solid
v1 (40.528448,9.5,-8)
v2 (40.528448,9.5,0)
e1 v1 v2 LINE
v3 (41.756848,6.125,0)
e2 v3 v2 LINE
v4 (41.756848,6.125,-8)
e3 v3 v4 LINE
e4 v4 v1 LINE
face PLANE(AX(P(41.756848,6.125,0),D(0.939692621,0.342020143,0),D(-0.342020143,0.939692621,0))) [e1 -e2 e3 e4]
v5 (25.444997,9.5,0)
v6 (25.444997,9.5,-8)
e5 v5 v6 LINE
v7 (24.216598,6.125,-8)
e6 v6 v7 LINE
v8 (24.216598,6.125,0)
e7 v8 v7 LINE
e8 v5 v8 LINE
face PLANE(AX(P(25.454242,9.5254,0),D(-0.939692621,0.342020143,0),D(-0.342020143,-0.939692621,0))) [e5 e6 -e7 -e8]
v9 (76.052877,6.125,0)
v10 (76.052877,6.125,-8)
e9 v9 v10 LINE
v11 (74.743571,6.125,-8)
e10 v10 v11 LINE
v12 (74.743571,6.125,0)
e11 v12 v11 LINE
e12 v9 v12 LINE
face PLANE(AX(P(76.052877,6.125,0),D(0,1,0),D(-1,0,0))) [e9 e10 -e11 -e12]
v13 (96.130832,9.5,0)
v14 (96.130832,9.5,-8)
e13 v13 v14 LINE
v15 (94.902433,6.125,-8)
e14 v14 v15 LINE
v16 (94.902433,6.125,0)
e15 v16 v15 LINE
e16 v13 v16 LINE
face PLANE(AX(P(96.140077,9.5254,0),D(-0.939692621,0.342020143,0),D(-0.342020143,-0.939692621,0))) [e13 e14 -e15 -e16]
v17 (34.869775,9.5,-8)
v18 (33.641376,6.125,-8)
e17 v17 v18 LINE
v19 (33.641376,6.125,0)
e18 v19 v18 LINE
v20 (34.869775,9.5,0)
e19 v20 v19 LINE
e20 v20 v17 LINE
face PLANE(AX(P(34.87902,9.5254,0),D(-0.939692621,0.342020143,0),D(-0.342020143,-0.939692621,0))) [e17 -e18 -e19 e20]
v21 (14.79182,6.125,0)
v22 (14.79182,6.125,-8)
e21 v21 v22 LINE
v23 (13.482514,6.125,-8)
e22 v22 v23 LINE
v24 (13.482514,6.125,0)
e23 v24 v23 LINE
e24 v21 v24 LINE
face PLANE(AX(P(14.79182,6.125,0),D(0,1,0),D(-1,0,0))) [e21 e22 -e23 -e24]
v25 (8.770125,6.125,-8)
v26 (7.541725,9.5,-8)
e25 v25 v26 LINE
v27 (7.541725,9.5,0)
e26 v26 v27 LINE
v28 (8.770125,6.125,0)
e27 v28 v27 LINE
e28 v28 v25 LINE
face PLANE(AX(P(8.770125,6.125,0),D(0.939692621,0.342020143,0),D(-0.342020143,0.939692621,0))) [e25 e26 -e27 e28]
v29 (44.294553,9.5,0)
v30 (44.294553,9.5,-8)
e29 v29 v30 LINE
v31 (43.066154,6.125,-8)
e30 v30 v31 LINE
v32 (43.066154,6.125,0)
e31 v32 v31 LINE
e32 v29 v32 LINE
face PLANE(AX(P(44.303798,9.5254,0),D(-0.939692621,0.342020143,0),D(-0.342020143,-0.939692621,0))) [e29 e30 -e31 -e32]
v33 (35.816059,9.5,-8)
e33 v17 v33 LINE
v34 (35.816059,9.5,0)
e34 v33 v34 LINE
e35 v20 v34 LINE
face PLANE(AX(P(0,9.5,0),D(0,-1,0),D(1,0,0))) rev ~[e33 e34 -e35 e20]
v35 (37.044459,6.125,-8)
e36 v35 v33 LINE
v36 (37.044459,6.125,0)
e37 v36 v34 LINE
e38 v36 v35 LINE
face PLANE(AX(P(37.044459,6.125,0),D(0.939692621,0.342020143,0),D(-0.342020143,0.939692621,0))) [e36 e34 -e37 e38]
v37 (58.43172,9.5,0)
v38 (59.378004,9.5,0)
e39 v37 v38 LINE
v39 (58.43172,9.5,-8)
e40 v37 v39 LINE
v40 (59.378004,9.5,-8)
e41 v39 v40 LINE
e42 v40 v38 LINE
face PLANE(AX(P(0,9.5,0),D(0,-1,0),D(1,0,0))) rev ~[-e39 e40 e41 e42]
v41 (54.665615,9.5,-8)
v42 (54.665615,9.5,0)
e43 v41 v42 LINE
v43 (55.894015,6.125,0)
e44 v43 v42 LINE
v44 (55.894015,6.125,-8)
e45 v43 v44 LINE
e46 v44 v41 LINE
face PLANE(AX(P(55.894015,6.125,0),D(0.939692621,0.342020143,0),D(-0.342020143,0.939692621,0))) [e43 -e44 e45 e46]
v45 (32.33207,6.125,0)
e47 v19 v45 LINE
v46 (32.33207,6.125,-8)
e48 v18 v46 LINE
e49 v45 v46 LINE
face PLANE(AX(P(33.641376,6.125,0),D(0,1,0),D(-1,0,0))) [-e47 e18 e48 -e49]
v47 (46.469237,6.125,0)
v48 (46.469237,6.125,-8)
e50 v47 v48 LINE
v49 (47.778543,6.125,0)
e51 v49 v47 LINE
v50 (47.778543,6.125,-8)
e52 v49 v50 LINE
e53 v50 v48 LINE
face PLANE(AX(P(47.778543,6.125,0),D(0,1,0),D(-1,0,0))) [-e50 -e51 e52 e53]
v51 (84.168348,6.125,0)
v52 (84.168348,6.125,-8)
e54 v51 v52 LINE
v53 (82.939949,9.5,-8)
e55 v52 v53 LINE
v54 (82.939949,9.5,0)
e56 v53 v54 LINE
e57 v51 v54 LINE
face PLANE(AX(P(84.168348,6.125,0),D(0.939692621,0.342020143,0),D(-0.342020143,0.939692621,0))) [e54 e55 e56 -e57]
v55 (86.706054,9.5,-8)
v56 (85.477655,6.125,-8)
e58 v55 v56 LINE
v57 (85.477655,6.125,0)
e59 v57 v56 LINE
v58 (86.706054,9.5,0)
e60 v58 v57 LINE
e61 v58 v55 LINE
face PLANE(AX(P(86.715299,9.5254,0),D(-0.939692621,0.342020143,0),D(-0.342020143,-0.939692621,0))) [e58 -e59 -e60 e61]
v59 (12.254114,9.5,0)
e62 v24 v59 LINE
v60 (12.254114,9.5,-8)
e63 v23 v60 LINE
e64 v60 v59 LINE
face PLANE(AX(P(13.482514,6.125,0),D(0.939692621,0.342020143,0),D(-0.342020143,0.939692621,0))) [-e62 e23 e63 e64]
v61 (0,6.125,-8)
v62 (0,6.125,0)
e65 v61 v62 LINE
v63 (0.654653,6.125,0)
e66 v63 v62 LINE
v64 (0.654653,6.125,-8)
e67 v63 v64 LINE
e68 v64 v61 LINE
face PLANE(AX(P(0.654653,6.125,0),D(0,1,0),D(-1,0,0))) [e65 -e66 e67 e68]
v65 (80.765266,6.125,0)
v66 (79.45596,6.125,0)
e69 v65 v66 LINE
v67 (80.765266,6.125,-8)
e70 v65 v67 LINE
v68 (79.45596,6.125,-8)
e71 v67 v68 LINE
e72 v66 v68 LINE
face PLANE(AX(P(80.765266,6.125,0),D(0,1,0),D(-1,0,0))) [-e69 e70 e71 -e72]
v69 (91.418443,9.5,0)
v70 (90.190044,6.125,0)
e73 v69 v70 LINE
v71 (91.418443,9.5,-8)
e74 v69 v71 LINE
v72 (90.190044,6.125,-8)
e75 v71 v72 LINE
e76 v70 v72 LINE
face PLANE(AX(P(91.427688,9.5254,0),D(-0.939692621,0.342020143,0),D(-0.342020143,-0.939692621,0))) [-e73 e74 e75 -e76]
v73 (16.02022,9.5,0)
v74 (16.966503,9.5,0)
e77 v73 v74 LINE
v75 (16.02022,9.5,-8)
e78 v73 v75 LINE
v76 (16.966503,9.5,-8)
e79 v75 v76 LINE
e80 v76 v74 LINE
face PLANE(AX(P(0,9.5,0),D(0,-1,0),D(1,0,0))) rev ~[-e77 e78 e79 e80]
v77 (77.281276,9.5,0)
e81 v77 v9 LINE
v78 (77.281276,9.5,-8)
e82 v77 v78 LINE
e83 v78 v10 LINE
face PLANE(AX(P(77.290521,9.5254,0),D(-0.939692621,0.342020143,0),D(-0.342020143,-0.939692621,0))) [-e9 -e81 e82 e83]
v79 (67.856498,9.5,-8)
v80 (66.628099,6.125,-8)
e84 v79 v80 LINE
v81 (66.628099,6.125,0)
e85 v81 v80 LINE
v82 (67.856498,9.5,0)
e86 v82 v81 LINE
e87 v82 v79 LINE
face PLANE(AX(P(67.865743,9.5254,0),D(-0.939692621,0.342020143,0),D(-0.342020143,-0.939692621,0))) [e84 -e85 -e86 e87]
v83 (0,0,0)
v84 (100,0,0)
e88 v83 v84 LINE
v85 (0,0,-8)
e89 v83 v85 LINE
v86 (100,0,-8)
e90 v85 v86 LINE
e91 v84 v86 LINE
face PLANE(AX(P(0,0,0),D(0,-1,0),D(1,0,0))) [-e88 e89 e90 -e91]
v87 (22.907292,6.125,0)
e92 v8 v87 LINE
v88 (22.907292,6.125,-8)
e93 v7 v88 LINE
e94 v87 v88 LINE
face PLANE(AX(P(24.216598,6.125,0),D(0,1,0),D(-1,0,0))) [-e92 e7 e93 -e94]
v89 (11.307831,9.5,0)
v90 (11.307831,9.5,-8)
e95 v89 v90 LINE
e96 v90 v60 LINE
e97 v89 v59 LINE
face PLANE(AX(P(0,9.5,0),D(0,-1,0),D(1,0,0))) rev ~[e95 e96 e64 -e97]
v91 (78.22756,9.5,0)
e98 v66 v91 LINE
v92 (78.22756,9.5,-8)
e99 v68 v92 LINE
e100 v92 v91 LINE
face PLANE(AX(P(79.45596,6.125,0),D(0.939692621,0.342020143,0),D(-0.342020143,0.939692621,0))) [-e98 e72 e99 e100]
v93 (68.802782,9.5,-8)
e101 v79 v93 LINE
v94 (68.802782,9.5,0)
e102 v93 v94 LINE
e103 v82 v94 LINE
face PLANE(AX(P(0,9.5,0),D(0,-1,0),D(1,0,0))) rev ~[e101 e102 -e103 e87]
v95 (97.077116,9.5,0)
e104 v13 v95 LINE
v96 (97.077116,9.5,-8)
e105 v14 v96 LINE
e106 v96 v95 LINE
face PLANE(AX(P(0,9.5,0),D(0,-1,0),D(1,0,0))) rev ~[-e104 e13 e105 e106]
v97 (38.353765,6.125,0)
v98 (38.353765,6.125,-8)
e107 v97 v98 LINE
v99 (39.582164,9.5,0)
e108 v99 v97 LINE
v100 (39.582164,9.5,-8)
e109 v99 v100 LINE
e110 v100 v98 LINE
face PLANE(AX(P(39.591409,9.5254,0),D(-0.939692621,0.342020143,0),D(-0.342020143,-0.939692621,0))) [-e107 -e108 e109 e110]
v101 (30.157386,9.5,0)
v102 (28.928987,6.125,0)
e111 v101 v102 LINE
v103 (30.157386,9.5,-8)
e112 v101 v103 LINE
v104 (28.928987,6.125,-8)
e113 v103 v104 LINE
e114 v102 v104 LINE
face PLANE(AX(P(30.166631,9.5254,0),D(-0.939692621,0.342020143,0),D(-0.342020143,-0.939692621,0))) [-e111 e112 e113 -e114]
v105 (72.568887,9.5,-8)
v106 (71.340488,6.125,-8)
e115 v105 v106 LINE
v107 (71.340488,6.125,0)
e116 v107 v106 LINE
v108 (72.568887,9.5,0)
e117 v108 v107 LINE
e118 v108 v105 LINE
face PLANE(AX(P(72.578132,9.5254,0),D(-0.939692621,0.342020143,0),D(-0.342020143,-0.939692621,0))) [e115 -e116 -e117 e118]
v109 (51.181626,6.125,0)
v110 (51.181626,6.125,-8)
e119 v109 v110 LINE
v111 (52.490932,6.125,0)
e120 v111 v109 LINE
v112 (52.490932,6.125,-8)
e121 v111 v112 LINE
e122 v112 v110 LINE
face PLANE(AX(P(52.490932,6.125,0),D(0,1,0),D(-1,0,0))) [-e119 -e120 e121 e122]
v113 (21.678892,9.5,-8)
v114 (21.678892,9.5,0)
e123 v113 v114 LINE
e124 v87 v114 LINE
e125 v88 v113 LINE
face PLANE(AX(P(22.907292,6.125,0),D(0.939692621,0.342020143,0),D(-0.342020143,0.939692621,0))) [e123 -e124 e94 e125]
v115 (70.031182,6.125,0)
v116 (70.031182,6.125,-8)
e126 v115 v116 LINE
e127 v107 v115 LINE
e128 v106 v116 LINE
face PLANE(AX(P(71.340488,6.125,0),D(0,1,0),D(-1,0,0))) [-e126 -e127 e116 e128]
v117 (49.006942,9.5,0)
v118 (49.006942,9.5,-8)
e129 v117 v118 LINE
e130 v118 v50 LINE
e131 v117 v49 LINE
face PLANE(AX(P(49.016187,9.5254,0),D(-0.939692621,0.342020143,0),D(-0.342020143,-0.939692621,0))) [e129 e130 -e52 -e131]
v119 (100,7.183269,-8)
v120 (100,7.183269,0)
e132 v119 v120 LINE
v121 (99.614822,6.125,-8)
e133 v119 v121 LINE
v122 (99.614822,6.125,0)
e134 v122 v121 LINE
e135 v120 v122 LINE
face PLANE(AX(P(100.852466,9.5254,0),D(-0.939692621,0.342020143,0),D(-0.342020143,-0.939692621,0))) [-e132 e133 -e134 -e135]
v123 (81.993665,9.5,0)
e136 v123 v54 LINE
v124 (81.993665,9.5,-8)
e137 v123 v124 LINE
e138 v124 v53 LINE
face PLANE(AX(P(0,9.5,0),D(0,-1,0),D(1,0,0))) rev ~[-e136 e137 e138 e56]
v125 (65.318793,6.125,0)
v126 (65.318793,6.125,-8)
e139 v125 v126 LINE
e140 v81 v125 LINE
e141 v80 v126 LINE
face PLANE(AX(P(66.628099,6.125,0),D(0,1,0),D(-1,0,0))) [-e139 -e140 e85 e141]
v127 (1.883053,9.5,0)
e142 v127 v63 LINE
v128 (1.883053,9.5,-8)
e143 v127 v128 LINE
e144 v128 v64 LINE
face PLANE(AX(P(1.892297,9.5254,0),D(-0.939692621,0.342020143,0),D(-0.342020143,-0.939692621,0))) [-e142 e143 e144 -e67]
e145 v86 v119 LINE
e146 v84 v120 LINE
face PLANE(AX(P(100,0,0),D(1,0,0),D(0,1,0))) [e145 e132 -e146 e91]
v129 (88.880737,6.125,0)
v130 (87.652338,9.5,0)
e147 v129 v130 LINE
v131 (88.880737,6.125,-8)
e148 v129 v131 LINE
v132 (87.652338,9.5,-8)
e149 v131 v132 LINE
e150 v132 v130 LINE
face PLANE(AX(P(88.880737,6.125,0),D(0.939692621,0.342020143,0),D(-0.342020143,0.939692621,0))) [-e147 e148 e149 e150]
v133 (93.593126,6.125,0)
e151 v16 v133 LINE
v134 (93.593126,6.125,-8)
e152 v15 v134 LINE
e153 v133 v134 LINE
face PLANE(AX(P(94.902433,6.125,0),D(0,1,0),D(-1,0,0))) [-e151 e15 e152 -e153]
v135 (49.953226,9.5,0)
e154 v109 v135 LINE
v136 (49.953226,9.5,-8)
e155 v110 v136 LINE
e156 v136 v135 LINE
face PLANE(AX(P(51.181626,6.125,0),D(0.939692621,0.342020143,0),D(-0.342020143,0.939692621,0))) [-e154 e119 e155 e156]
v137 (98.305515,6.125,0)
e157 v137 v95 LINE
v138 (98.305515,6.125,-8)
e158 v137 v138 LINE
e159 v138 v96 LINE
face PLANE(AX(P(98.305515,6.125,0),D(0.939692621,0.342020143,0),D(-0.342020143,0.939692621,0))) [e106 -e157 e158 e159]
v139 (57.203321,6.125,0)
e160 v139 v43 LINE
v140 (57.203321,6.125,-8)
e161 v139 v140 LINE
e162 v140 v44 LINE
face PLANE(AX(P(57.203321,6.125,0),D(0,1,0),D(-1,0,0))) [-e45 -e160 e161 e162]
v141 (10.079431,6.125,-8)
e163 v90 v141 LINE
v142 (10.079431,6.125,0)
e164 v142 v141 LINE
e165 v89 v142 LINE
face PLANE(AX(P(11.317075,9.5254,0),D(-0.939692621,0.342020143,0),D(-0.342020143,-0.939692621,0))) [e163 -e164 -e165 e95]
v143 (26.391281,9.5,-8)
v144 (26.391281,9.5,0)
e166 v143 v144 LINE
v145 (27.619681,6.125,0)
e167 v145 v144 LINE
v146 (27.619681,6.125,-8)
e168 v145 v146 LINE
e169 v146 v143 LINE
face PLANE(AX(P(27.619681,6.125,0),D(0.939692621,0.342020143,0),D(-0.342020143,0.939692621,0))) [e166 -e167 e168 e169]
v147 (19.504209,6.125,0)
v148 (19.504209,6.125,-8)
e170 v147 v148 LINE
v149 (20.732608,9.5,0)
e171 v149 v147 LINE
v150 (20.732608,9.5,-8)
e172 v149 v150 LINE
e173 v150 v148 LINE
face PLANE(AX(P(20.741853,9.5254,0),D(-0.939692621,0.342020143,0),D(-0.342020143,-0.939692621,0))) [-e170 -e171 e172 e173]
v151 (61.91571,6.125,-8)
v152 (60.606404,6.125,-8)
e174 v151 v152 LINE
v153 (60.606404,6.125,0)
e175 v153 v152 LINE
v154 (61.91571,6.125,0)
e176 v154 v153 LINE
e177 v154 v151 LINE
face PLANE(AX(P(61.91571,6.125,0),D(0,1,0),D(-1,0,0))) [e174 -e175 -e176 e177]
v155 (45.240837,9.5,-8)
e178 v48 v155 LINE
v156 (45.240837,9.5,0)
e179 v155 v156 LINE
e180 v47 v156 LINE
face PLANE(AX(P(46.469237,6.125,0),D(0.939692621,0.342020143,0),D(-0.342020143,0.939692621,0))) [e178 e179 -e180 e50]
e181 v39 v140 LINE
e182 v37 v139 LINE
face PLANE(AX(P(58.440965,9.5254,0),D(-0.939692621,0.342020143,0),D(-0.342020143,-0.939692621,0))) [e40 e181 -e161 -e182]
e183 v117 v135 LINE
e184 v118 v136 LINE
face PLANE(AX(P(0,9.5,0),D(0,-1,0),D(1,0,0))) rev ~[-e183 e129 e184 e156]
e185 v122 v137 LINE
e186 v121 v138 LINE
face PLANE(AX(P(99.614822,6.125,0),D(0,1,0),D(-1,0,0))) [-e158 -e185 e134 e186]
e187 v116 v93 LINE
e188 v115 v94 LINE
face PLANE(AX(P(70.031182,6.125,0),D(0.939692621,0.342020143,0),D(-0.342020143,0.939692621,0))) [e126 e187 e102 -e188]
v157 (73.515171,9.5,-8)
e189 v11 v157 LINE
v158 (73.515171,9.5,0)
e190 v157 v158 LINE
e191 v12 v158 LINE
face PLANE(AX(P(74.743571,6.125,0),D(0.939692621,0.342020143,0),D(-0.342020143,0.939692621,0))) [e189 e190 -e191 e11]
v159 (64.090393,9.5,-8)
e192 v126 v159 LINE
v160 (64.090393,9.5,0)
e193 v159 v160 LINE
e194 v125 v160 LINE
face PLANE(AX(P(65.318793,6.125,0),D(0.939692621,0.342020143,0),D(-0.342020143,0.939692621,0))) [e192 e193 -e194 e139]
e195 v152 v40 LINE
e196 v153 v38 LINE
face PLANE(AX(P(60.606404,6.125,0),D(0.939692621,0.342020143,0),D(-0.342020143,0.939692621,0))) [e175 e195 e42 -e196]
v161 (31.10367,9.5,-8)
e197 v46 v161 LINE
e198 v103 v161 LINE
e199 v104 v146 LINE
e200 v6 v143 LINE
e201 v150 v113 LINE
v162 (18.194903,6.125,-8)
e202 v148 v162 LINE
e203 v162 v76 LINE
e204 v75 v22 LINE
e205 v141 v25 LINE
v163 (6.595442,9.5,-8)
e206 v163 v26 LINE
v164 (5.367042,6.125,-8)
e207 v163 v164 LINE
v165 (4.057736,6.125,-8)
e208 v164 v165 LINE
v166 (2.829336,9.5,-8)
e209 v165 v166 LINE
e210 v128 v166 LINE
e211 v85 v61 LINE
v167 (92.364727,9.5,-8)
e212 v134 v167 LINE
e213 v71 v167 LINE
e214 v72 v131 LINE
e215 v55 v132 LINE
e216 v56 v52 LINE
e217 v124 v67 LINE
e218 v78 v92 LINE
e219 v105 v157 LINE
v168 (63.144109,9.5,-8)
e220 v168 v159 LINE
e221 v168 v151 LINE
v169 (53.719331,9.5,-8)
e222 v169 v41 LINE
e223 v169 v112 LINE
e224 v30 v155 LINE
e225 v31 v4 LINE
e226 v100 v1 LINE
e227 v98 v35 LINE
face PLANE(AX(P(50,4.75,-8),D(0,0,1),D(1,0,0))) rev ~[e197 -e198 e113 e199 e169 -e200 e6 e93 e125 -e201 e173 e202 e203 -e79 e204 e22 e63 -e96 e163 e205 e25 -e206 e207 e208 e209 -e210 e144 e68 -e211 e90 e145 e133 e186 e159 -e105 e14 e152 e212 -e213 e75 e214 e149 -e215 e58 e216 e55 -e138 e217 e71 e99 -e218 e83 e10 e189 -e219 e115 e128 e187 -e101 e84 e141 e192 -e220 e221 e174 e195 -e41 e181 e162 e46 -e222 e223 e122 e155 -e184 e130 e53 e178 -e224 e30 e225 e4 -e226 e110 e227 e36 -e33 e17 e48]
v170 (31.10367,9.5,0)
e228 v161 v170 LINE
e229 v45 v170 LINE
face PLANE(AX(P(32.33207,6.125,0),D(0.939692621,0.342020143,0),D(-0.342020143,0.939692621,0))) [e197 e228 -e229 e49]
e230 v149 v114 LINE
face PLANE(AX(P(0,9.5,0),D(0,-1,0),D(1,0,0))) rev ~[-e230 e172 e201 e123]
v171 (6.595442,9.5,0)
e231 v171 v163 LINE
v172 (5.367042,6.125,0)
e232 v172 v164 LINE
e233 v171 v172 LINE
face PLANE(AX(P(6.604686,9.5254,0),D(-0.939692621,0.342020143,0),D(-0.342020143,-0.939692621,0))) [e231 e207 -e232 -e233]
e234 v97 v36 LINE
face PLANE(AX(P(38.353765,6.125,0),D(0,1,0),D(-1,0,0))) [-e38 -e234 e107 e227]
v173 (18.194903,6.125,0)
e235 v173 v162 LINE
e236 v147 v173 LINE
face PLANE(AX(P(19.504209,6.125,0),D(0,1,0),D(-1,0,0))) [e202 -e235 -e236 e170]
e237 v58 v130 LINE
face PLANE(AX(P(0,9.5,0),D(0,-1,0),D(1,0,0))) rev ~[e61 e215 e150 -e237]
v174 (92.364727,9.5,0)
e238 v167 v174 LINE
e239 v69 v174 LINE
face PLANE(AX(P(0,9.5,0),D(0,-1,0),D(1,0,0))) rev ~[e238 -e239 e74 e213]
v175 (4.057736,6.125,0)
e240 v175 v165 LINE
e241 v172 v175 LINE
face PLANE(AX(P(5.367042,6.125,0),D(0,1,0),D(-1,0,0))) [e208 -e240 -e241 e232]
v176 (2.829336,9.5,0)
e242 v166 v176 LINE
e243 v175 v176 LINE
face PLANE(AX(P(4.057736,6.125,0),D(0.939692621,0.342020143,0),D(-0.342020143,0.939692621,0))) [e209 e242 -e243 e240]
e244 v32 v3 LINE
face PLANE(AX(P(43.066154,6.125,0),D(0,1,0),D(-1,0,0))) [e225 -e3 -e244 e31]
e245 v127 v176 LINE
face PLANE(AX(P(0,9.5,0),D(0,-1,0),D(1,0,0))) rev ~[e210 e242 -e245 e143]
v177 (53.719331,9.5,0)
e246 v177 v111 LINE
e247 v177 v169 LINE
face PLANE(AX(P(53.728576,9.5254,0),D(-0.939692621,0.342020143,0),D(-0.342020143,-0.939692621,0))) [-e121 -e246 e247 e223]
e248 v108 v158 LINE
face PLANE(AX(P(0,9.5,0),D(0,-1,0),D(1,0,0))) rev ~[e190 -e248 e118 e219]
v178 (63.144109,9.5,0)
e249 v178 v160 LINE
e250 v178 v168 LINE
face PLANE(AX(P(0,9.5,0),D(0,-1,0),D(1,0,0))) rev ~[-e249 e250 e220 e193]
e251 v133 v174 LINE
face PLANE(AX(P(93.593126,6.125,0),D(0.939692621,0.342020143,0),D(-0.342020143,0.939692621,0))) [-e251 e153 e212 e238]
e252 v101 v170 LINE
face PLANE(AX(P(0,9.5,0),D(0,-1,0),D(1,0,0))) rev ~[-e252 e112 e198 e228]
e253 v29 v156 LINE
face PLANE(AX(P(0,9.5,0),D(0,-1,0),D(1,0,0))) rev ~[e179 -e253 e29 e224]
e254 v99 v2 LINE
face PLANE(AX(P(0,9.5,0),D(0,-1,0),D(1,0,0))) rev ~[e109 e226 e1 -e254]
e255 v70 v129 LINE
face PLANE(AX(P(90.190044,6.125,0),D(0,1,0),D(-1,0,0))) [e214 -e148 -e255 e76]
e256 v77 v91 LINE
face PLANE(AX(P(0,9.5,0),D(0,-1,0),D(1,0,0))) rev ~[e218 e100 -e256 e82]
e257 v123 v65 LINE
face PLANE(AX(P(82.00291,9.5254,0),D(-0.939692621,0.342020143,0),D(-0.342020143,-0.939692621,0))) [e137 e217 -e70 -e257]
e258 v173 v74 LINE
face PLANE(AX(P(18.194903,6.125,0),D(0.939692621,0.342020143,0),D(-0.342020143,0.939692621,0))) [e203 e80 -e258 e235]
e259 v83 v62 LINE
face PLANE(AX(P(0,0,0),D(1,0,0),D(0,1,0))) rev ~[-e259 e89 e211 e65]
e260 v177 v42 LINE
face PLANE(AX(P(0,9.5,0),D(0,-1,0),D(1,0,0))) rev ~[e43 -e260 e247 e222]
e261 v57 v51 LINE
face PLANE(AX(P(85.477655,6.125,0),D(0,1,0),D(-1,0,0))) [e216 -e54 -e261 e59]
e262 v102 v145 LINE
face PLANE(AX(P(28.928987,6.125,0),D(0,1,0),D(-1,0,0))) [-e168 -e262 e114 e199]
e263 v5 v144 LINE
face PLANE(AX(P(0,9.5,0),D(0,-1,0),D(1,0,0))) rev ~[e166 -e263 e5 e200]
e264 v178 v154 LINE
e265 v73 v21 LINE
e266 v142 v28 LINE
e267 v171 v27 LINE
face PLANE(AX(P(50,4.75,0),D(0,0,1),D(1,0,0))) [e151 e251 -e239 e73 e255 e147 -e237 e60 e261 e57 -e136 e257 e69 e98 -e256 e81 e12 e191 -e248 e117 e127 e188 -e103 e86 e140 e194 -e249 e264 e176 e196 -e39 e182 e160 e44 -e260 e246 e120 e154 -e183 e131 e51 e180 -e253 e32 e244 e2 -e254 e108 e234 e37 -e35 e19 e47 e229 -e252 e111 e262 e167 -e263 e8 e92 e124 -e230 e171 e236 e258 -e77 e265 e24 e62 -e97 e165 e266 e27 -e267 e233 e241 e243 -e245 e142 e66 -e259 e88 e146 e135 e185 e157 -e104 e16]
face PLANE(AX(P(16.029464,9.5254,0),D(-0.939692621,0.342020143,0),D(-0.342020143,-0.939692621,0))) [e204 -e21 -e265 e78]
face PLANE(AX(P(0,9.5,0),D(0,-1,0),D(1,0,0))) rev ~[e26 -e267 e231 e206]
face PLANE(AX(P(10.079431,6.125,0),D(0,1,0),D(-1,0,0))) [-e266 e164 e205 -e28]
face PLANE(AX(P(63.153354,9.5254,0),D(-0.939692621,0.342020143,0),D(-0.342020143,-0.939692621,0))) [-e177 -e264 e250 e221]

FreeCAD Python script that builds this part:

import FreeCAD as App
import Part
import Sketcher
from FreeCAD import Vector
Q = App.Units.Quantity


def add_polygon(sketch, points):
    """Adds a closed chain of lines whose ends are joined by coincident constraints."""
    first, n = sketch.GeometryCount, len(points)
    for a, b in zip(points, points[1:] + points[:1]):
        sketch.addGeometry(Part.LineSegment(App.Vector(*a, 0), App.Vector(*b, 0)), False)
    for i in range(n):
        sketch.addConstraint(Sketcher.Constraint("Coincident", first + i, 2, first + (i + 1) % n, 1))

doc = App.newDocument("Part")
params = doc.addObject("Spreadsheet::Sheet", "Params")
for row, (alias, value) in enumerate([
    ("sketch1_width", "100 mm"),
    ("sketch1_height", "9.5 mm"),
    ("pad1_length", "8 mm"),
    ("linearpattern_pitch", "4.712389 mm"),
], start=1):
    params.set(f"A{row}", alias)
    params.set(f"B{row}", "=" + value)
    params.setAlias(f"B{row}", alias)

body = doc.addObject("PartDesign::Body", "Body")

sketch1 = body.newObject("Sketcher::SketchObject", "Sketch")
sketch1.AttachmentSupport = (doc.getObject("XY_Plane"), [""])
sketch1.MapMode = "FlatFace"
add_polygon(sketch1, [(0, 10), (0, 0), (100, 0), (100, 10)])
sketch1.addConstraint([
    Sketcher.Constraint("Vertical", 0),
    Sketcher.Constraint("Horizontal", 1),
    Sketcher.Constraint("Vertical", 2),
    Sketcher.Constraint("Horizontal", 3),
    Sketcher.Constraint("Coincident", 0, 2, -1, 1),
    Sketcher.Constraint("DistanceX", 1, 1, 1, 2, 100.0),
    Sketcher.Constraint("DistanceY", 0, 2, 0, 1, 9.5),
])
sketch1.setExpression("Constraints[9]", "Params.sketch1_width")
sketch1.setExpression("Constraints[10]", "Params.sketch1_height")
pad1 = body.newObject("PartDesign::Pad", "Pad")
pad1.Profile = sketch1
pad1.setExpression("Length", "Params.pad1_length")
pad1.Reversed = True

sketch2 = body.newObject("Sketcher::SketchObject", "Sketch001")
sketch2.AttachmentSupport = (doc.getObject("XY_Plane"), [""])
sketch2.MapMode = "FlatFace"
add_polygon(sketch2, [(-0.7, 6.1), (0.7, 6.1), (1.9, 9.5), (-1.9, 9.5)])
sketch2.addConstraint([
    Sketcher.Constraint("Horizontal", 0),
    Sketcher.Constraint("Horizontal", 2),
    Sketcher.Constraint("Equal", 1, 3),
    Sketcher.Constraint("Angle", 1, Q("70 deg")),
    Sketcher.Constraint("DistanceY", -1, 1, 0, 2, 6.125),
    Sketcher.Constraint("DistanceY", -1, 1, 1, 2, 9.5254),
    Sketcher.Constraint("DistanceX", 0, 1, 0, 2, 1.309306),
    Sketcher.Constraint("DistanceX", -1, 1, 0, 2, 0.654653),
])
pocket1 = body.newObject("PartDesign::Pocket", "Pocket")
pocket1.Profile = sketch2
pocket1.Type = "ThroughAll"
doc.recompute()

linearpattern = body.newObject("PartDesign::LinearPattern", "LinearPattern")
linearpattern.Originals = [pocket1]
linearpattern.Direction = (doc.getObject("X_Axis"), [""])
linearpattern.Mode = "offset"
linearpattern.setExpression("Offset", "Params.linearpattern_pitch")
linearpattern.Occurrences = 22
body.Tip = linearpattern

doc.recompute()
